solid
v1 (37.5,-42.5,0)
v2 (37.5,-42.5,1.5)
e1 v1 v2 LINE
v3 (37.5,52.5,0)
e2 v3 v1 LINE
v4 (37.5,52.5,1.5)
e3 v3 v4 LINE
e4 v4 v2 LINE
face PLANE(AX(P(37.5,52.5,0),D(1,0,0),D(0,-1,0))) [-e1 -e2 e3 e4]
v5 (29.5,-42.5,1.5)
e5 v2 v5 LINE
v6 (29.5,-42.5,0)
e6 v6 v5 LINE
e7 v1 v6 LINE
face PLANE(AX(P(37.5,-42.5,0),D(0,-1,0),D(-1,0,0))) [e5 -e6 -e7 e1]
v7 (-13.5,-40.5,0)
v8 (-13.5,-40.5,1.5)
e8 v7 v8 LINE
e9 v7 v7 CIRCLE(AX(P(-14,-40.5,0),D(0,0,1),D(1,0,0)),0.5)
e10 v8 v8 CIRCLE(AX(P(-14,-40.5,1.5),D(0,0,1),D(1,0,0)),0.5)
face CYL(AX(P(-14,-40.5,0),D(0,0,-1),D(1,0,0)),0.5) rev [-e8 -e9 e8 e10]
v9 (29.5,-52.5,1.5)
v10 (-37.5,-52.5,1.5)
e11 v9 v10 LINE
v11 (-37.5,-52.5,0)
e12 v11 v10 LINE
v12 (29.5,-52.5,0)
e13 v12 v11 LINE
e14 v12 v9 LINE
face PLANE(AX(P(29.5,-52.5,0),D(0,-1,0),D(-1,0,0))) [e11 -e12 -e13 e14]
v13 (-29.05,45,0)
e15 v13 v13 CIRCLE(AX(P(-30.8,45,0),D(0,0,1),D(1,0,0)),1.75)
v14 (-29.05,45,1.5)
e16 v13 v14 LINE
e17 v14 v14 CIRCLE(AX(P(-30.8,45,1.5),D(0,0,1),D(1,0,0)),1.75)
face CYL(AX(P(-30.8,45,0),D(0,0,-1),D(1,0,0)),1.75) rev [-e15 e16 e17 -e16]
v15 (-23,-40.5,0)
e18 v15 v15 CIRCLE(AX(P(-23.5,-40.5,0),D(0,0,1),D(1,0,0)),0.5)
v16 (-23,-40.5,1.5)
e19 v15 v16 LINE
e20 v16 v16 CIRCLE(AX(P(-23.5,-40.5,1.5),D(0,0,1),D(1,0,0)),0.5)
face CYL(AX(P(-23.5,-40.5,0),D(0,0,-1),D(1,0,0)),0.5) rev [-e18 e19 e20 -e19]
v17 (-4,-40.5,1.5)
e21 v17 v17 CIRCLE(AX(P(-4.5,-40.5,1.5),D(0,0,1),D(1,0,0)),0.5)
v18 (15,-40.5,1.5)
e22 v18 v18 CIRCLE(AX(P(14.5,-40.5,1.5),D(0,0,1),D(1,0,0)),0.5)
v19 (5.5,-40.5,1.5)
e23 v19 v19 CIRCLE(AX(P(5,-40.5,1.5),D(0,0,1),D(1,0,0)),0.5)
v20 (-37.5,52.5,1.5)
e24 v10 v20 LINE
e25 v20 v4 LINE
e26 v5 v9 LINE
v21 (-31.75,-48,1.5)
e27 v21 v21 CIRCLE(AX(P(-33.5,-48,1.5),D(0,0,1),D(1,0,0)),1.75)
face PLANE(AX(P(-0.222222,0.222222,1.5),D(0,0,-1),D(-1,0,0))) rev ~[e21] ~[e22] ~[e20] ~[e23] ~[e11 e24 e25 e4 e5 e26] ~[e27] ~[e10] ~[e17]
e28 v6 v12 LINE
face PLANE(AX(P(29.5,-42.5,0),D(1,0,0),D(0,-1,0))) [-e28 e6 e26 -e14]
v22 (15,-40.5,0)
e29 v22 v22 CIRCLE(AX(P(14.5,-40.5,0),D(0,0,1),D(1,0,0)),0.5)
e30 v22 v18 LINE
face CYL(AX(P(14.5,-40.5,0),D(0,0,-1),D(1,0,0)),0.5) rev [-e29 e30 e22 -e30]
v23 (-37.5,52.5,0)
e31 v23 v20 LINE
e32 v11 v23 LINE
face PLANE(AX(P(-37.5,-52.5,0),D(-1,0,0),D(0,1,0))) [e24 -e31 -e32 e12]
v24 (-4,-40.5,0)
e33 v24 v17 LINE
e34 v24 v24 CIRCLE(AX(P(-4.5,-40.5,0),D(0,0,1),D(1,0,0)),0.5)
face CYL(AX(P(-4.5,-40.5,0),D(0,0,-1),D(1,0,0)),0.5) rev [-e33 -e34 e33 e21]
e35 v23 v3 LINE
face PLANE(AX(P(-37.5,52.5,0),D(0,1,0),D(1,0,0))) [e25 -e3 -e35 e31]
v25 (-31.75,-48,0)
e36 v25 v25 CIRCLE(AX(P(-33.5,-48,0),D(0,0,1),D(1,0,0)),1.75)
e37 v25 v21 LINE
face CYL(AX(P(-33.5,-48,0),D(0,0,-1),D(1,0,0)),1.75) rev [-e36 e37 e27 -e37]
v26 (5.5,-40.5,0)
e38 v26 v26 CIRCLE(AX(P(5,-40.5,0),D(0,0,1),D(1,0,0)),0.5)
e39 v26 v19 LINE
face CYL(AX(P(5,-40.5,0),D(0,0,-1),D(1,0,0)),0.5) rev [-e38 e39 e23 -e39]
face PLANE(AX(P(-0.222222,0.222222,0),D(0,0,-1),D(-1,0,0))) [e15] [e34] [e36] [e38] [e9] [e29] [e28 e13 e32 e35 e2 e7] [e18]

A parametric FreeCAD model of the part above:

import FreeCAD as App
import Part
import Sketcher
from FreeCAD import Vector
Q = App.Units.Quantity


def add_polygon(sketch, points):
    """Adds a closed chain of lines whose ends are joined by coincident constraints."""
    first, n = sketch.GeometryCount, len(points)
    for a, b in zip(points, points[1:] + points[:1]):
        sketch.addGeometry(Part.LineSegment(App.Vector(*a, 0), App.Vector(*b, 0)), False)
    for i in range(n):
        sketch.addConstraint(Sketcher.Constraint("Coincident", first + i, 2, first + (i + 1) % n, 1))

doc = App.newDocument("Part")
body = doc.addObject("PartDesign::Body", "Body")

# Sketch on XY plane
sketch1 = body.newObject("Sketcher::SketchObject", "Sketch")
sketch1.AttachmentSupport = (doc.getObject("XY_Plane"), [""])
sketch1.MapMode = "FlatFace"
add_polygon(sketch1, [(37.5, 52.5), (-37.5, 52.5), (-37.5, -52.5), (29.5, -52.5), (29.5, -42.5), (37.5, -42.5)])  # lines 0-5
sketch1.addGeometry(Part.Circle(Vector(14.5, -40.5, 0), Vector(0, 0, 1), 0.5), False)  # 6
sketch1.addGeometry(Part.Circle(Vector(5, -40.5, 0), Vector(0, 0, 1), 0.5), False)  # 7
sketch1.addGeometry(Part.Circle(Vector(-4.5, -40.5, 0), Vector(0, 0, 1), 0.5), False)  # 8
sketch1.addGeometry(Part.Circle(Vector(-14, -40.5, 0), Vector(0, 0, 1), 0.5), False)  # 9
sketch1.addGeometry(Part.Circle(Vector(-23.5, -40.5, 0), Vector(0, 0, 1), 0.5), False)  # 10
sketch1.addGeometry(Part.Circle(Vector(-33.5, -48, 0), Vector(0, 0, 1), 1.8), False)  # 11
sketch1.addGeometry(Part.Circle(Vector(-30.8, 45, 0), Vector(0, 0, 1), 1.8), False)  # 12
sketch1.addConstraint([
    Sketcher.Constraint("Horizontal", 0),
    Sketcher.Constraint("Vertical", 1),
    Sketcher.Constraint("Horizontal", 2),
    Sketcher.Constraint("Vertical", 3),
    Sketcher.Constraint("Horizontal", 4),
    Sketcher.Constraint("Vertical", 5),
    Sketcher.Constraint("Equal", 6, 7),
    Sketcher.Constraint("Equal", 7, 8),
    Sketcher.Constraint("Equal", 8, 9),
    Sketcher.Constraint("Equal", 9, 10),
    Sketcher.Constraint("Equal", 11, 12),
    Sketcher.Constraint("Symmetric", 1, 2, 5, 2, -1, 1),
    Sketcher.Constraint("Horizontal", 6, 3, 7, 3),
    Sketcher.Constraint("Horizontal", 7, 3, 8, 3),
    Sketcher.Constraint("Horizontal", 8, 3, 9, 3),
    Sketcher.Constraint("Horizontal", 9, 3, 10, 3),
    Sketcher.Constraint("Diameter", 6, Q("1 mm")),
    Sketcher.Constraint("Diameter", 11, Q("3.5 mm")),
    Sketcher.Constraint("DistanceX", 0, 2, 0, 1, Q("75 mm")),
    Sketcher.Constraint("DistanceX", 2, 1, 2, 2, Q("67 mm")),
    Sketcher.Constraint("DistanceY", 1, 2, 1, 1, Q("105 mm")),
    Sketcher.Constraint("DistanceY", 3, 1, 3, 2, Q("10 mm")),
    Sketcher.Constraint("DistanceX", -1, 1, 7, 3, Q("5 mm")),
    Sketcher.Constraint("DistanceX", 9, 3, -1, 1, Q("14 mm")),
    Sketcher.Constraint("DistanceY", 11, 3, -1, 1, Q("48 mm")),
    Sketcher.Constraint("DistanceY", -1, 1, 12, 3, Q("45 mm")),
    Sketcher.Constraint("DistanceX", 8, 3, 6, 3, Q("19 mm")),
    Sketcher.Constraint("DistanceX", 10, 3, 8, 3, Q("19 mm")),
    Sketcher.Constraint("DistanceX", 11, 3, 10, 3, Q("10 mm")),
    Sketcher.Constraint("DistanceX", 0, 2, 10, 3, Q("14 mm")),
    Sketcher.Constraint("DistanceY", 10, 3, 0, 2, Q("93 mm")),
    Sketcher.Constraint("DistanceX", 12, 3, -1, 1, Q("30.8 mm")),
])
pad1 = body.newObject("PartDesign::Pad", "Pad")
pad1.Profile = sketch1
pad1.Length = 1.5

doc.recompute()
